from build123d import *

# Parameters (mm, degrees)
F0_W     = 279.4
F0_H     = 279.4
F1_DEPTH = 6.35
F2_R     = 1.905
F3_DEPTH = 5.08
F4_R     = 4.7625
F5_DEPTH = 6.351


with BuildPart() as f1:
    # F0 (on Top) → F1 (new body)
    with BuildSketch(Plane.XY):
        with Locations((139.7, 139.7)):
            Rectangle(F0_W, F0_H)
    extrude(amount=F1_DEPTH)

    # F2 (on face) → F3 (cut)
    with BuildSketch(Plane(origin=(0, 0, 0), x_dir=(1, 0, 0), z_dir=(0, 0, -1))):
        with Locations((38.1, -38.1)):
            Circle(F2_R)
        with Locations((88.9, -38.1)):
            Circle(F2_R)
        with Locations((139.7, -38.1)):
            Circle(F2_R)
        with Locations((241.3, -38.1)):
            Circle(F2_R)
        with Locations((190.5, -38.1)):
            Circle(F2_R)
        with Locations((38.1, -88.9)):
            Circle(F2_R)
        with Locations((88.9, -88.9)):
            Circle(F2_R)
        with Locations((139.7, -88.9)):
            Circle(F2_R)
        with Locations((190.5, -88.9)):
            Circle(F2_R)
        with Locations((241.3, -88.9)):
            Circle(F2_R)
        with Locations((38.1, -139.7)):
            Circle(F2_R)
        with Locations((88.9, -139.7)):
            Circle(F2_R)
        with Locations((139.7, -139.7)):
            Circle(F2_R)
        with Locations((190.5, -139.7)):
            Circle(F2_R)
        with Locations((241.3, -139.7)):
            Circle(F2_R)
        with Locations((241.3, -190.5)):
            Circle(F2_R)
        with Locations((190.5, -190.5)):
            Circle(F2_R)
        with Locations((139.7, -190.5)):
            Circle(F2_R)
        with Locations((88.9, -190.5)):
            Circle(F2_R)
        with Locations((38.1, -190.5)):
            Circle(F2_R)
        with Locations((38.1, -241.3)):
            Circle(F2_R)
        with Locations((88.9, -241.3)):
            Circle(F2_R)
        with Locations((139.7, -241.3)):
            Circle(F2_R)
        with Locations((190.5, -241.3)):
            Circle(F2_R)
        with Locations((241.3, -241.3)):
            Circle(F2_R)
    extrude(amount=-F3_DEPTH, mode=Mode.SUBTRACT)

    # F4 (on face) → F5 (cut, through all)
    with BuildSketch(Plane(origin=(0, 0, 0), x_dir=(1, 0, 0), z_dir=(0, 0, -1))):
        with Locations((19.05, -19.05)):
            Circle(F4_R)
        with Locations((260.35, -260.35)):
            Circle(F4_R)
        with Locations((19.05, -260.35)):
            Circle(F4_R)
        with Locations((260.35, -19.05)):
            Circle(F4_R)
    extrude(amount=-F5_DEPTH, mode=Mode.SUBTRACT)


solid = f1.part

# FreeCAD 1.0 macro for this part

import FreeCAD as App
import Part
import Sketcher

V = App.Vector
Q = App.Units.Quantity


def add_polygon(sketch, points):
    """Adds a closed chain of lines whose ends are joined by coincident constraints."""
    first, n = sketch.GeometryCount, len(points)
    for a, b in zip(points, points[1:] + points[:1]):
        sketch.addGeometry(Part.LineSegment(App.Vector(*a, 0), App.Vector(*b, 0)), False)
    for i in range(n):
        sketch.addConstraint(Sketcher.Constraint("Coincident", first + i, 2, first + (i + 1) % n, 1))

doc = App.newDocument("Part")
body = doc.addObject("PartDesign::Body", "Body")

# Sketch on XY plane
sketch1 = body.newObject("Sketcher::SketchObject", "Sketch")
sketch1.AttachmentSupport = (doc.getObject("XY_Plane"), [""])
sketch1.MapMode = "FlatFace"
add_polygon(sketch1, [(0, 279), (0, 0), (279, 0), (279, 279)])  # lines 0-3
sketch1.addConstraint(Sketcher.Constraint("Vertical", 0))
sketch1.addConstraint(Sketcher.Constraint("Horizontal", 1))
sketch1.addConstraint(Sketcher.Constraint("Vertical", 2))
sketch1.addConstraint(Sketcher.Constraint("Horizontal", 3))
sketch1.addConstraint(Sketcher.Constraint("Coincident", 0, 2, -1, 1))
sketch1.addConstraint(Sketcher.Constraint("Equal", 3, 0))
sketch1.addConstraint(Sketcher.Constraint("DistanceX", 1, 1, 1, 2, Q("11 in")))
pad1 = body.newObject("PartDesign::Pad", "Pad")
pad1.Profile = sketch1
pad1.Length = Q("0.25 in")

# Sketch on XY plane
sketch2 = body.newObject("Sketcher::SketchObject", "Sketch001")
sketch2.AttachmentSupport = (doc.getObject("XY_Plane"), [""])
sketch2.MapMode = "FlatFace"
sketch2.addGeometry(Part.Circle(V(38.1, 38.1, 0), V(0, 0, 1), 1.9), False)
sketch2.addGeometry(Part.Circle(V(88.9, 38.1, 0), V(0, 0, 1), 1.9), False)
sketch2.addGeometry(Part.Circle(V(139.7, 38.1, 0), V(0, 0, 1), 1.9), False)
sketch2.addGeometry(Part.Circle(V(241.3, 38.1, 0), V(0, 0, 1), 1.9), False)
sketch2.addGeometry(Part.Circle(V(190.5, 38.1, 0), V(0, 0, 1), 1.9), False)
sketch2.addGeometry(Part.Circle(V(38.1, 88.9, 0), V(0, 0, 1), 1.9), False)
sketch2.addGeometry(Part.Circle(V(88.9, 88.9, 0), V(0, 0, 1), 1.9), False)
sketch2.addGeometry(Part.Circle(V(139.7, 88.9, 0), V(0, 0, 1), 1.9), False)
sketch2.addGeometry(Part.Circle(V(190.5, 88.9, 0), V(0, 0, 1), 1.9), False)
sketch2.addGeometry(Part.Circle(V(241.3, 88.9, 0), V(0, 0, 1), 1.9), False)
sketch2.addGeometry(Part.Circle(V(38.1, 139.7, 0), V(0, 0, 1), 1.9), False)
sketch2.addGeometry(Part.Circle(V(88.9, 139.7, 0), V(0, 0, 1), 1.9), False)
sketch2.addGeometry(Part.Circle(V(139.7, 139.7, 0), V(0, 0, 1), 1.9), False)
sketch2.addGeometry(Part.Circle(V(190.5, 139.7, 0), V(0, 0, 1), 1.9), False)
sketch2.addGeometry(Part.Circle(V(241.3, 139.7, 0), V(0, 0, 1), 1.9), False)
sketch2.addGeometry(Part.Circle(V(241.3, 190.5, 0), V(0, 0, 1), 1.9), False)
sketch2.addGeometry(Part.Circle(V(190.5, 190.5, 0), V(0, 0, 1), 1.9), False)
sketch2.addGeometry(Part.Circle(V(139.7, 190.5, 0), V(0, 0, 1), 1.9), False)
sketch2.addGeometry(Part.Circle(V(88.9, 190.5, 0), V(0, 0, 1), 1.9), False)
sketch2.addGeometry(Part.Circle(V(38.1, 190.5, 0), V(0, 0, 1), 1.9), False)
sketch2.addGeometry(Part.Circle(V(38.1, 241.3, 0), V(0, 0, 1), 1.9), False)
sketch2.addGeometry(Part.Circle(V(88.9, 241.3, 0), V(0, 0, 1), 1.9), False)
sketch2.addGeometry(Part.Circle(V(139.7, 241.3, 0), V(0, 0, 1), 1.9), False)
sketch2.addGeometry(Part.Circle(V(190.5, 241.3, 0), V(0, 0, 1), 1.9), False)
sketch2.addGeometry(Part.Circle(V(241.3, 241.3, 0), V(0, 0, 1), 1.9), False)
sketch2.addConstraint(Sketcher.Constraint("Equal", 0, 1))
sketch2.addConstraint(Sketcher.Constraint("Equal", 1, 2))
sketch2.addConstraint(Sketcher.Constraint("Equal", 2, 3))
sketch2.addConstraint(Sketcher.Constraint("Equal", 3, 4))
sketch2.addConstraint(Sketcher.Constraint("Equal", 4, 5))
sketch2.addConstraint(Sketcher.Constraint("Equal", 5, 6))
sketch2.addConstraint(Sketcher.Constraint("Equal", 6, 7))
sketch2.addConstraint(Sketcher.Constraint("Equal", 7, 8))
sketch2.addConstraint(Sketcher.Constraint("Equal", 8, 9))
sketch2.addConstraint(Sketcher.Constraint("Equal", 9, 10))
sketch2.addConstraint(Sketcher.Constraint("Equal", 10, 11))
sketch2.addConstraint(Sketcher.Constraint("Equal", 11, 12))
sketch2.addConstraint(Sketcher.Constraint("Equal", 12, 13))
sketch2.addConstraint(Sketcher.Constraint("Equal", 13, 14))
sketch2.addConstraint(Sketcher.Constraint("Equal", 14, 15))
sketch2.addConstraint(Sketcher.Constraint("Equal", 15, 16))
sketch2.addConstraint(Sketcher.Constraint("Equal", 16, 17))
sketch2.addConstraint(Sketcher.Constraint("Equal", 17, 18))
sketch2.addConstraint(Sketcher.Constraint("Equal", 18, 19))
sketch2.addConstraint(Sketcher.Constraint("Equal", 19, 20))
sketch2.addConstraint(Sketcher.Constraint("Equal", 20, 21))
sketch2.addConstraint(Sketcher.Constraint("Equal", 21, 22))
sketch2.addConstraint(Sketcher.Constraint("Equal", 22, 23))
sketch2.addConstraint(Sketcher.Constraint("Equal", 23, 24))
sketch2.addConstraint(Sketcher.Constraint("Horizontal", 0, 3, 1, 3))
sketch2.addConstraint(Sketcher.Constraint("Horizontal", 1, 3, 2, 3))
sketch2.addConstraint(Sketcher.Constraint("Horizontal", 2, 3, 3, 3))
sketch2.addConstraint(Sketcher.Constraint("Horizontal", 3, 3, 4, 3))
sketch2.addConstraint(Sketcher.Constraint("Horizontal", 5, 3, 6, 3))
sketch2.addConstraint(Sketcher.Constraint("Horizontal", 6, 3, 7, 3))
sketch2.addConstraint(Sketcher.Constraint("Horizontal", 7, 3, 8, 3))
sketch2.addConstraint(Sketcher.Constraint("Horizontal", 8, 3, 9, 3))
sketch2.addConstraint(Sketcher.Constraint("Horizontal", 10, 3, 11, 3))
sketch2.addConstraint(Sketcher.Constraint("Horizontal", 11, 3, 12, 3))
sketch2.addConstraint(Sketcher.Constraint("Horizontal", 12, 3, 13, 3))
sketch2.addConstraint(Sketcher.Constraint("Horizontal", 13, 3, 14, 3))
sketch2.addConstraint(Sketcher.Constraint("Horizontal", 15, 3, 16, 3))
sketch2.addConstraint(Sketcher.Constraint("Horizontal", 16, 3, 17, 3))
sketch2.addConstraint(Sketcher.Constraint("Horizontal", 17, 3, 18, 3))
sketch2.addConstraint(Sketcher.Constraint("Horizontal", 18, 3, 19, 3))
sketch2.addConstraint(Sketcher.Constraint("Horizontal", 20, 3, 21, 3))
sketch2.addConstraint(Sketcher.Constraint("Horizontal", 21, 3, 22, 3))
sketch2.addConstraint(Sketcher.Constraint("Horizontal", 22, 3, 23, 3))
sketch2.addConstraint(Sketcher.Constraint("Horizontal", 23, 3, 24, 3))
sketch2.addConstraint(Sketcher.Constraint("Vertical", 0, 3, 5, 3))
sketch2.addConstraint(Sketcher.Constraint("Vertical", 1, 3, 6, 3))
sketch2.addConstraint(Sketcher.Constraint("Vertical", 2, 3, 7, 3))
sketch2.addConstraint(Sketcher.Constraint("Vertical", 4, 3, 8, 3))
sketch2.addConstraint(Sketcher.Constraint("Vertical", 3, 3, 9, 3))
sketch2.addConstraint(Sketcher.Constraint("Vertical", 5, 3, 10, 3))
sketch2.addConstraint(Sketcher.Constraint("Vertical", 6, 3, 11, 3))
sketch2.addConstraint(Sketcher.Constraint("Vertical", 7, 3, 12, 3))
sketch2.addConstraint(Sketcher.Constraint("Vertical", 8, 3, 13, 3))
sketch2.addConstraint(Sketcher.Constraint("Vertical", 9, 3, 14, 3))
sketch2.addConstraint(Sketcher.Constraint("Vertical", 14, 3, 15, 3))
sketch2.addConstraint(Sketcher.Constraint("Vertical", 13, 3, 16, 3))
sketch2.addConstraint(Sketcher.Constraint("Vertical", 12, 3, 17, 3))
sketch2.addConstraint(Sketcher.Constraint("Vertical", 11, 3, 18, 3))
sketch2.addConstraint(Sketcher.Constraint("Vertical", 10, 3, 19, 3))
sketch2.addConstraint(Sketcher.Constraint("Vertical", 19, 3, 20, 3))
sketch2.addConstraint(Sketcher.Constraint("Vertical", 18, 3, 21, 3))
sketch2.addConstraint(Sketcher.Constraint("Vertical", 17, 3, 22, 3))
sketch2.addConstraint(Sketcher.Constraint("Vertical", 16, 3, 23, 3))
sketch2.addConstraint(Sketcher.Constraint("Vertical", 15, 3, 24, 3))
sketch2.addConstraint(Sketcher.Constraint("Diameter", 0, Q("0.15 in")))
sketch2.addConstraint(Sketcher.Constraint("DistanceX", 0, 3, 1, 3, Q("2 in")))
sketch2.addConstraint(Sketcher.Constraint("DistanceX", 1, 3, 2, 3, Q("2 in")))
sketch2.addConstraint(Sketcher.Constraint("DistanceX", 2, 3, 3, 3, Q("4 in")))
sketch2.addConstraint(Sketcher.Constraint("DistanceX", 2, 3, 4, 3, Q("2 in")))
sketch2.addConstraint(Sketcher.Constraint("DistanceY", 0, 3, 5, 3, Q("2 in")))
sketch2.addConstraint(Sketcher.Constraint("DistanceY", 5, 3, 10, 3, Q("2 in")))
sketch2.addConstraint(Sketcher.Constraint("DistanceY", 14, 3, 15, 3, Q("2 in")))
sketch2.addConstraint(Sketcher.Constraint("DistanceY", 19, 3, 20, 3, Q("2 in")))
sketch2.addConstraint(Sketcher.Constraint("DistanceX", -1, 1, 0, 3, Q("1.5 in")))
sketch2.addConstraint(Sketcher.Constraint("DistanceY", -1, 1, 0, 3, Q("1.5 in")))
pocket1 = body.newObject("PartDesign::Pocket", "Pocket")
pocket1.Profile = sketch2
pocket1.Length = Q("0.2 in")
pocket1.Reversed = True

# Sketch on XY plane
sketch3 = body.newObject("Sketcher::SketchObject", "Sketch002")
sketch3.AttachmentSupport = (doc.getObject("XY_Plane"), [""])
sketch3.MapMode = "FlatFace"
sketch3.addGeometry(Part.Circle(V(19.1, 19.1, 0), V(0, 0, 1), 4.8), False)
sketch3.addGeometry(Part.Circle(V(260.4, 260.4, 0), V(0, 0, 1), 4.8), False)
sketch3.addGeometry(Part.Circle(V(19.1, 260.4, 0), V(0, 0, 1), 4.8), False)
sketch3.addGeometry(Part.Circle(V(260.4, 19.1, 0), V(0, 0, 1), 4.8), False)
sketch3.addConstraint(Sketcher.Constraint("Equal", 0, 1))
sketch3.addConstraint(Sketcher.Constraint("Equal", 1, 2))
sketch3.addConstraint(Sketcher.Constraint("Equal", 2, 3))
sketch3.addConstraint(Sketcher.Constraint("Horizontal", 1, 3, 2, 3))
sketch3.addConstraint(Sketcher.Constraint("Horizontal", 0, 3, 3, 3))
sketch3.addConstraint(Sketcher.Constraint("Vertical", 0, 3, 2, 3))
sketch3.addConstraint(Sketcher.Constraint("Vertical", 1, 3, 3, 3))
sketch3.addConstraint(Sketcher.Constraint("Diameter", 0, Q("0.375 in")))
sketch3.addConstraint(Sketcher.Constraint("DistanceX", 0, 3, 1, 3, Q("9.5 in")))
sketch3.addConstraint(Sketcher.Constraint("DistanceY", 0, 3, 1, 3, Q("9.5 in")))
sketch3.addConstraint(Sketcher.Constraint("DistanceX", -1, 1, 0, 3, Q("0.75 in")))
sketch3.addConstraint(Sketcher.Constraint("DistanceY", -1, 1, 0, 3, Q("0.75 in")))
pocket2 = body.newObject("PartDesign::Pocket", "Pocket001")
pocket2.Profile = sketch3
pocket2.Type = "ThroughAll"
pocket2.Reversed = True

doc.recompute()
